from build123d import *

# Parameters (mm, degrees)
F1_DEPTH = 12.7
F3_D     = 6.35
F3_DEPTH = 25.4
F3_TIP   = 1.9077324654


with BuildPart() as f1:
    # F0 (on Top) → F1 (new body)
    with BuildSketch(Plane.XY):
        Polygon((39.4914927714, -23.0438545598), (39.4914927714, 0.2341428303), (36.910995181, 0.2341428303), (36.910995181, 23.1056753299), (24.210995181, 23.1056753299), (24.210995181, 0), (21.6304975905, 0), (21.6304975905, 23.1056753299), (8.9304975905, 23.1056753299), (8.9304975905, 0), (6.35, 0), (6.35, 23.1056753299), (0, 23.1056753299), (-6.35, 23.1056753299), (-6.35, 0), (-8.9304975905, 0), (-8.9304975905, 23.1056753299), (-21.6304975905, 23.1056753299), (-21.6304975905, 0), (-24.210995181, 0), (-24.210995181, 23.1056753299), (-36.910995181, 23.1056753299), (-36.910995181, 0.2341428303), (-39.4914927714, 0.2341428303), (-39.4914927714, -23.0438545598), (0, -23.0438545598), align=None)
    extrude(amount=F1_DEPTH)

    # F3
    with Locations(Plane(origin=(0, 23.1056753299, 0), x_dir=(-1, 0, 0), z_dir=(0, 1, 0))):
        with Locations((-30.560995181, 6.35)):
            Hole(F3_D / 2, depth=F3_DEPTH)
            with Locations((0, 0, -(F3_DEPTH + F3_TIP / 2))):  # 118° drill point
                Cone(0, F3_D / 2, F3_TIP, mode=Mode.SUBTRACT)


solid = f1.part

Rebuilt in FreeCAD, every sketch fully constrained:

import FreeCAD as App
import Part
import Sketcher
Q = App.Units.Quantity

doc = App.newDocument("Part")
body = doc.addObject("PartDesign::Body", "Body")

# Sketch on XY plane
sketch1 = body.newObject("Sketcher::SketchObject", "Sketch")
sketch1.AttachmentSupport = (doc.getObject("XY_Plane"), [""])
sketch1.MapMode = "FlatFace"
sketch1.addGeometry(Part.LineSegment(App.Vector(39.491493, -23.043855, 0), App.Vector(39.491493, 0.234143, 0)), False)
sketch1.addGeometry(Part.LineSegment(App.Vector(39.491493, 0.234143, 0), App.Vector(36.910995, 0.234143, 0)), False)
sketch1.addGeometry(Part.LineSegment(App.Vector(36.910995, 0.234143, 0), App.Vector(36.910995, 23.105675, 0)), False)
sketch1.addGeometry(Part.LineSegment(App.Vector(36.910995, 23.105675, 0), App.Vector(24.210995, 23.105675, 0)), False)
sketch1.addGeometry(Part.LineSegment(App.Vector(24.210995, 23.105675, 0), App.Vector(24.210995, 0, 0)), False)
sketch1.addGeometry(Part.LineSegment(App.Vector(24.210995, 0, 0), App.Vector(21.630498, 0, 0)), False)
sketch1.addGeometry(Part.LineSegment(App.Vector(21.630498, 0, 0), App.Vector(21.630498, 23.105675, 0)), False)
sketch1.addGeometry(Part.LineSegment(App.Vector(21.630498, 23.105675, 0), App.Vector(8.930498, 23.105675, 0)), False)
sketch1.addGeometry(Part.LineSegment(App.Vector(8.930498, 23.105675, 0), App.Vector(8.930498, 0, 0)), False)
sketch1.addGeometry(Part.LineSegment(App.Vector(8.930498, 0, 0), App.Vector(6.35, 0, 0)), False)
sketch1.addGeometry(Part.LineSegment(App.Vector(6.35, 0, 0), App.Vector(6.35, 23.105675, 0)), False)
sketch1.addGeometry(Part.LineSegment(App.Vector(6.35, 23.105675, 0), App.Vector(-6.35, 23.105675, 0)), False)
sketch1.addGeometry(Part.LineSegment(App.Vector(-6.35, 23.105675, 0), App.Vector(-6.35, 0, 0)), False)
sketch1.addGeometry(Part.LineSegment(App.Vector(-6.35, 0, 0), App.Vector(-8.930498, 0, 0)), False)
sketch1.addGeometry(Part.LineSegment(App.Vector(-8.930498, 0, 0), App.Vector(-8.930498, 23.105675, 0)), False)
sketch1.addGeometry(Part.LineSegment(App.Vector(-8.930498, 23.105675, 0), App.Vector(-21.630498, 23.105675, 0)), False)
sketch1.addGeometry(Part.LineSegment(App.Vector(-21.630498, 23.105675, 0), App.Vector(-21.630498, 0, 0)), False)
sketch1.addGeometry(Part.LineSegment(App.Vector(-21.630498, 0, 0), App.Vector(-24.210995, 0, 0)), False)
sketch1.addGeometry(Part.LineSegment(App.Vector(-24.210995, 0, 0), App.Vector(-24.210995, 23.105675, 0)), False)
sketch1.addGeometry(Part.LineSegment(App.Vector(-24.210995, 23.105675, 0), App.Vector(-36.910995, 23.105675, 0)), False)
sketch1.addGeometry(Part.LineSegment(App.Vector(-36.910995, 23.105675, 0), App.Vector(-36.910995, 0.234143, 0)), False)
sketch1.addGeometry(Part.LineSegment(App.Vector(-36.910995, 0.234143, 0), App.Vector(-39.491493, 0.234143, 0)), False)
sketch1.addGeometry(Part.LineSegment(App.Vector(-39.491493, 0.234143, 0), App.Vector(-39.491493, -23.043855, 0)), False)
sketch1.addGeometry(Part.LineSegment(App.Vector(-39.491493, -23.043855, 0), App.Vector(39.491493, -23.043855, 0)), False)
sketch1.addConstraint(Sketcher.Constraint("Coincident", 0, 2, 1, 1))
sketch1.addConstraint(Sketcher.Constraint("Coincident", 1, 2, 2, 1))
sketch1.addConstraint(Sketcher.Constraint("Coincident", 2, 2, 3, 1))
sketch1.addConstraint(Sketcher.Constraint("Coincident", 3, 2, 4, 1))
sketch1.addConstraint(Sketcher.Constraint("Coincident", 4, 2, 5, 1))
sketch1.addConstraint(Sketcher.Constraint("Coincident", 5, 2, 6, 1))
sketch1.addConstraint(Sketcher.Constraint("Coincident", 6, 2, 7, 1))
sketch1.addConstraint(Sketcher.Constraint("Coincident", 7, 2, 8, 1))
sketch1.addConstraint(Sketcher.Constraint("Coincident", 8, 2, 9, 1))
sketch1.addConstraint(Sketcher.Constraint("Coincident", 9, 2, 10, 1))
sketch1.addConstraint(Sketcher.Constraint("Coincident", 10, 2, 11, 1))
sketch1.addConstraint(Sketcher.Constraint("Coincident", 11, 2, 12, 1))
sketch1.addConstraint(Sketcher.Constraint("Coincident", 12, 2, 13, 1))
sketch1.addConstraint(Sketcher.Constraint("Coincident", 13, 2, 14, 1))
sketch1.addConstraint(Sketcher.Constraint("Coincident", 14, 2, 15, 1))
sketch1.addConstraint(Sketcher.Constraint("Coincident", 15, 2, 16, 1))
sketch1.addConstraint(Sketcher.Constraint("Coincident", 16, 2, 17, 1))
sketch1.addConstraint(Sketcher.Constraint("Coincident", 17, 2, 18, 1))
sketch1.addConstraint(Sketcher.Constraint("Coincident", 18, 2, 19, 1))
sketch1.addConstraint(Sketcher.Constraint("Coincident", 19, 2, 20, 1))
sketch1.addConstraint(Sketcher.Constraint("Coincident", 20, 2, 21, 1))
sketch1.addConstraint(Sketcher.Constraint("Coincident", 21, 2, 22, 1))
sketch1.addConstraint(Sketcher.Constraint("Coincident", 22, 2, 23, 1))
sketch1.addConstraint(Sketcher.Constraint("Coincident", 23, 2, 0, 1))
sketch1.addConstraint(Sketcher.Constraint("Vertical", 0))
sketch1.addConstraint(Sketcher.Constraint("Horizontal", 1))
sketch1.addConstraint(Sketcher.Constraint("Vertical", 2))
sketch1.addConstraint(Sketcher.Constraint("Horizontal", 3))
sketch1.addConstraint(Sketcher.Constraint("Vertical", 4))
sketch1.addConstraint(Sketcher.Constraint("Horizontal", 5))
sketch1.addConstraint(Sketcher.Constraint("Vertical", 6))
sketch1.addConstraint(Sketcher.Constraint("Horizontal", 7))
sketch1.addConstraint(Sketcher.Constraint("Vertical", 8))
sketch1.addConstraint(Sketcher.Constraint("Horizontal", 9))
sketch1.addConstraint(Sketcher.Constraint("Vertical", 10))
sketch1.addConstraint(Sketcher.Constraint("Horizontal", 11))
sketch1.addConstraint(Sketcher.Constraint("Vertical", 12))
sketch1.addConstraint(Sketcher.Constraint("Horizontal", 13))
sketch1.addConstraint(Sketcher.Constraint("Vertical", 14))
sketch1.addConstraint(Sketcher.Constraint("Horizontal", 15))
sketch1.addConstraint(Sketcher.Constraint("Vertical", 16))
sketch1.addConstraint(Sketcher.Constraint("Horizontal", 17))
sketch1.addConstraint(Sketcher.Constraint("Vertical", 18))
sketch1.addConstraint(Sketcher.Constraint("Horizontal", 19))
sketch1.addConstraint(Sketcher.Constraint("Vertical", 20))
sketch1.addConstraint(Sketcher.Constraint("Horizontal", 21))
sketch1.addConstraint(Sketcher.Constraint("Vertical", 22))
sketch1.addConstraint(Sketcher.Constraint("Horizontal", 23))
sketch1.addConstraint(Sketcher.Constraint("Symmetric", 9, 2, 12, 2, -1, 1))
sketch1.addConstraint(Sketcher.Constraint("Symmetric", 5, 2, 16, 2, -1, 1))
sketch1.addConstraint(Sketcher.Constraint("Symmetric", 8, 2, 13, 2, -2))
sketch1.addConstraint(Sketcher.Constraint("Symmetric", 4, 2, 17, 2, -2))
sketch1.addConstraint(Sketcher.Constraint("Symmetric", 2, 2, 19, 2, -2))
sketch1.addConstraint(Sketcher.Constraint("Symmetric", 0, 2, 21, 2, -2))
sketch1.addConstraint(Sketcher.Constraint("Horizontal", 3, 2, 6, 2))
sketch1.addConstraint(Sketcher.Constraint("Horizontal", 7, 2, 10, 2))
sketch1.addConstraint(Sketcher.Constraint("Horizontal", 11, 2, 14, 2))
sketch1.addConstraint(Sketcher.Constraint("Equal", 1, 5))
sketch1.addConstraint(Sketcher.Constraint("Equal", 3, 7))
sketch1.addConstraint(Sketcher.Constraint("Equal", 5, 9))
sketch1.addConstraint(Sketcher.Constraint("Equal", 7, 11))
sketch1.addConstraint(Sketcher.Constraint("DistanceX", 3, 2, 3, 1, Q("0.5 in")))
sketch1.addConstraint(Sketcher.Constraint("DistanceX", 1, 2, 1, 1, Q("2.580498 mm")))
sketch1.addConstraint(Sketcher.Constraint("DistanceY", 0, 1, 0, 2, Q("23.277997 mm")))
sketch1.addConstraint(Sketcher.Constraint("DistanceY", 2, 1, 2, 2, Q("22.871533 mm")))
sketch1.addConstraint(Sketcher.Constraint("DistanceY", 4, 2, 4, 1, Q("23.105675 mm")))
pad1 = body.newObject("PartDesign::Pad", "Pad")
pad1.Profile = sketch1
pad1.Length = Q("0.5 in")

# Sketch on XZ plane
sketch2 = body.newObject("Sketcher::SketchObject", "Sketch001")
sketch2.AttachmentSupport = (doc.getObject("XZ_Plane"), [""])
sketch2.MapMode = "FlatFace"
sketch2.AttachmentOffset = App.Placement(App.Vector(0, 0, -23.105675), App.Rotation())
sketch2.addGeometry(Part.Circle(App.Vector(30.560995, 6.35, 0), App.Vector(0, 0, 1), 3.175), False)
sketch2.addConstraint(Sketcher.Constraint("Diameter", 0, Q("0.25 in")))
sketch2.addConstraint(Sketcher.Constraint("DistanceY", -1, 1, 0, 3, Q("0.25 in")))
sketch2.addConstraint(Sketcher.Constraint("DistanceX", -1, 1, 0, 3, Q("30.560995 mm")))
doc.recompute()
hole = body.newObject("PartDesign::Hole", "Hole")
hole.Profile = sketch2
hole.ThreadType = "None"
hole.Diameter = Q("0.25 in")
hole.DepthType = "Dimension"
hole.Depth = Q("1 in")
hole.DrillPoint = "Angled"
hole.DrillPointAngle = 118
hole.Reversed = True

doc.recompute()
